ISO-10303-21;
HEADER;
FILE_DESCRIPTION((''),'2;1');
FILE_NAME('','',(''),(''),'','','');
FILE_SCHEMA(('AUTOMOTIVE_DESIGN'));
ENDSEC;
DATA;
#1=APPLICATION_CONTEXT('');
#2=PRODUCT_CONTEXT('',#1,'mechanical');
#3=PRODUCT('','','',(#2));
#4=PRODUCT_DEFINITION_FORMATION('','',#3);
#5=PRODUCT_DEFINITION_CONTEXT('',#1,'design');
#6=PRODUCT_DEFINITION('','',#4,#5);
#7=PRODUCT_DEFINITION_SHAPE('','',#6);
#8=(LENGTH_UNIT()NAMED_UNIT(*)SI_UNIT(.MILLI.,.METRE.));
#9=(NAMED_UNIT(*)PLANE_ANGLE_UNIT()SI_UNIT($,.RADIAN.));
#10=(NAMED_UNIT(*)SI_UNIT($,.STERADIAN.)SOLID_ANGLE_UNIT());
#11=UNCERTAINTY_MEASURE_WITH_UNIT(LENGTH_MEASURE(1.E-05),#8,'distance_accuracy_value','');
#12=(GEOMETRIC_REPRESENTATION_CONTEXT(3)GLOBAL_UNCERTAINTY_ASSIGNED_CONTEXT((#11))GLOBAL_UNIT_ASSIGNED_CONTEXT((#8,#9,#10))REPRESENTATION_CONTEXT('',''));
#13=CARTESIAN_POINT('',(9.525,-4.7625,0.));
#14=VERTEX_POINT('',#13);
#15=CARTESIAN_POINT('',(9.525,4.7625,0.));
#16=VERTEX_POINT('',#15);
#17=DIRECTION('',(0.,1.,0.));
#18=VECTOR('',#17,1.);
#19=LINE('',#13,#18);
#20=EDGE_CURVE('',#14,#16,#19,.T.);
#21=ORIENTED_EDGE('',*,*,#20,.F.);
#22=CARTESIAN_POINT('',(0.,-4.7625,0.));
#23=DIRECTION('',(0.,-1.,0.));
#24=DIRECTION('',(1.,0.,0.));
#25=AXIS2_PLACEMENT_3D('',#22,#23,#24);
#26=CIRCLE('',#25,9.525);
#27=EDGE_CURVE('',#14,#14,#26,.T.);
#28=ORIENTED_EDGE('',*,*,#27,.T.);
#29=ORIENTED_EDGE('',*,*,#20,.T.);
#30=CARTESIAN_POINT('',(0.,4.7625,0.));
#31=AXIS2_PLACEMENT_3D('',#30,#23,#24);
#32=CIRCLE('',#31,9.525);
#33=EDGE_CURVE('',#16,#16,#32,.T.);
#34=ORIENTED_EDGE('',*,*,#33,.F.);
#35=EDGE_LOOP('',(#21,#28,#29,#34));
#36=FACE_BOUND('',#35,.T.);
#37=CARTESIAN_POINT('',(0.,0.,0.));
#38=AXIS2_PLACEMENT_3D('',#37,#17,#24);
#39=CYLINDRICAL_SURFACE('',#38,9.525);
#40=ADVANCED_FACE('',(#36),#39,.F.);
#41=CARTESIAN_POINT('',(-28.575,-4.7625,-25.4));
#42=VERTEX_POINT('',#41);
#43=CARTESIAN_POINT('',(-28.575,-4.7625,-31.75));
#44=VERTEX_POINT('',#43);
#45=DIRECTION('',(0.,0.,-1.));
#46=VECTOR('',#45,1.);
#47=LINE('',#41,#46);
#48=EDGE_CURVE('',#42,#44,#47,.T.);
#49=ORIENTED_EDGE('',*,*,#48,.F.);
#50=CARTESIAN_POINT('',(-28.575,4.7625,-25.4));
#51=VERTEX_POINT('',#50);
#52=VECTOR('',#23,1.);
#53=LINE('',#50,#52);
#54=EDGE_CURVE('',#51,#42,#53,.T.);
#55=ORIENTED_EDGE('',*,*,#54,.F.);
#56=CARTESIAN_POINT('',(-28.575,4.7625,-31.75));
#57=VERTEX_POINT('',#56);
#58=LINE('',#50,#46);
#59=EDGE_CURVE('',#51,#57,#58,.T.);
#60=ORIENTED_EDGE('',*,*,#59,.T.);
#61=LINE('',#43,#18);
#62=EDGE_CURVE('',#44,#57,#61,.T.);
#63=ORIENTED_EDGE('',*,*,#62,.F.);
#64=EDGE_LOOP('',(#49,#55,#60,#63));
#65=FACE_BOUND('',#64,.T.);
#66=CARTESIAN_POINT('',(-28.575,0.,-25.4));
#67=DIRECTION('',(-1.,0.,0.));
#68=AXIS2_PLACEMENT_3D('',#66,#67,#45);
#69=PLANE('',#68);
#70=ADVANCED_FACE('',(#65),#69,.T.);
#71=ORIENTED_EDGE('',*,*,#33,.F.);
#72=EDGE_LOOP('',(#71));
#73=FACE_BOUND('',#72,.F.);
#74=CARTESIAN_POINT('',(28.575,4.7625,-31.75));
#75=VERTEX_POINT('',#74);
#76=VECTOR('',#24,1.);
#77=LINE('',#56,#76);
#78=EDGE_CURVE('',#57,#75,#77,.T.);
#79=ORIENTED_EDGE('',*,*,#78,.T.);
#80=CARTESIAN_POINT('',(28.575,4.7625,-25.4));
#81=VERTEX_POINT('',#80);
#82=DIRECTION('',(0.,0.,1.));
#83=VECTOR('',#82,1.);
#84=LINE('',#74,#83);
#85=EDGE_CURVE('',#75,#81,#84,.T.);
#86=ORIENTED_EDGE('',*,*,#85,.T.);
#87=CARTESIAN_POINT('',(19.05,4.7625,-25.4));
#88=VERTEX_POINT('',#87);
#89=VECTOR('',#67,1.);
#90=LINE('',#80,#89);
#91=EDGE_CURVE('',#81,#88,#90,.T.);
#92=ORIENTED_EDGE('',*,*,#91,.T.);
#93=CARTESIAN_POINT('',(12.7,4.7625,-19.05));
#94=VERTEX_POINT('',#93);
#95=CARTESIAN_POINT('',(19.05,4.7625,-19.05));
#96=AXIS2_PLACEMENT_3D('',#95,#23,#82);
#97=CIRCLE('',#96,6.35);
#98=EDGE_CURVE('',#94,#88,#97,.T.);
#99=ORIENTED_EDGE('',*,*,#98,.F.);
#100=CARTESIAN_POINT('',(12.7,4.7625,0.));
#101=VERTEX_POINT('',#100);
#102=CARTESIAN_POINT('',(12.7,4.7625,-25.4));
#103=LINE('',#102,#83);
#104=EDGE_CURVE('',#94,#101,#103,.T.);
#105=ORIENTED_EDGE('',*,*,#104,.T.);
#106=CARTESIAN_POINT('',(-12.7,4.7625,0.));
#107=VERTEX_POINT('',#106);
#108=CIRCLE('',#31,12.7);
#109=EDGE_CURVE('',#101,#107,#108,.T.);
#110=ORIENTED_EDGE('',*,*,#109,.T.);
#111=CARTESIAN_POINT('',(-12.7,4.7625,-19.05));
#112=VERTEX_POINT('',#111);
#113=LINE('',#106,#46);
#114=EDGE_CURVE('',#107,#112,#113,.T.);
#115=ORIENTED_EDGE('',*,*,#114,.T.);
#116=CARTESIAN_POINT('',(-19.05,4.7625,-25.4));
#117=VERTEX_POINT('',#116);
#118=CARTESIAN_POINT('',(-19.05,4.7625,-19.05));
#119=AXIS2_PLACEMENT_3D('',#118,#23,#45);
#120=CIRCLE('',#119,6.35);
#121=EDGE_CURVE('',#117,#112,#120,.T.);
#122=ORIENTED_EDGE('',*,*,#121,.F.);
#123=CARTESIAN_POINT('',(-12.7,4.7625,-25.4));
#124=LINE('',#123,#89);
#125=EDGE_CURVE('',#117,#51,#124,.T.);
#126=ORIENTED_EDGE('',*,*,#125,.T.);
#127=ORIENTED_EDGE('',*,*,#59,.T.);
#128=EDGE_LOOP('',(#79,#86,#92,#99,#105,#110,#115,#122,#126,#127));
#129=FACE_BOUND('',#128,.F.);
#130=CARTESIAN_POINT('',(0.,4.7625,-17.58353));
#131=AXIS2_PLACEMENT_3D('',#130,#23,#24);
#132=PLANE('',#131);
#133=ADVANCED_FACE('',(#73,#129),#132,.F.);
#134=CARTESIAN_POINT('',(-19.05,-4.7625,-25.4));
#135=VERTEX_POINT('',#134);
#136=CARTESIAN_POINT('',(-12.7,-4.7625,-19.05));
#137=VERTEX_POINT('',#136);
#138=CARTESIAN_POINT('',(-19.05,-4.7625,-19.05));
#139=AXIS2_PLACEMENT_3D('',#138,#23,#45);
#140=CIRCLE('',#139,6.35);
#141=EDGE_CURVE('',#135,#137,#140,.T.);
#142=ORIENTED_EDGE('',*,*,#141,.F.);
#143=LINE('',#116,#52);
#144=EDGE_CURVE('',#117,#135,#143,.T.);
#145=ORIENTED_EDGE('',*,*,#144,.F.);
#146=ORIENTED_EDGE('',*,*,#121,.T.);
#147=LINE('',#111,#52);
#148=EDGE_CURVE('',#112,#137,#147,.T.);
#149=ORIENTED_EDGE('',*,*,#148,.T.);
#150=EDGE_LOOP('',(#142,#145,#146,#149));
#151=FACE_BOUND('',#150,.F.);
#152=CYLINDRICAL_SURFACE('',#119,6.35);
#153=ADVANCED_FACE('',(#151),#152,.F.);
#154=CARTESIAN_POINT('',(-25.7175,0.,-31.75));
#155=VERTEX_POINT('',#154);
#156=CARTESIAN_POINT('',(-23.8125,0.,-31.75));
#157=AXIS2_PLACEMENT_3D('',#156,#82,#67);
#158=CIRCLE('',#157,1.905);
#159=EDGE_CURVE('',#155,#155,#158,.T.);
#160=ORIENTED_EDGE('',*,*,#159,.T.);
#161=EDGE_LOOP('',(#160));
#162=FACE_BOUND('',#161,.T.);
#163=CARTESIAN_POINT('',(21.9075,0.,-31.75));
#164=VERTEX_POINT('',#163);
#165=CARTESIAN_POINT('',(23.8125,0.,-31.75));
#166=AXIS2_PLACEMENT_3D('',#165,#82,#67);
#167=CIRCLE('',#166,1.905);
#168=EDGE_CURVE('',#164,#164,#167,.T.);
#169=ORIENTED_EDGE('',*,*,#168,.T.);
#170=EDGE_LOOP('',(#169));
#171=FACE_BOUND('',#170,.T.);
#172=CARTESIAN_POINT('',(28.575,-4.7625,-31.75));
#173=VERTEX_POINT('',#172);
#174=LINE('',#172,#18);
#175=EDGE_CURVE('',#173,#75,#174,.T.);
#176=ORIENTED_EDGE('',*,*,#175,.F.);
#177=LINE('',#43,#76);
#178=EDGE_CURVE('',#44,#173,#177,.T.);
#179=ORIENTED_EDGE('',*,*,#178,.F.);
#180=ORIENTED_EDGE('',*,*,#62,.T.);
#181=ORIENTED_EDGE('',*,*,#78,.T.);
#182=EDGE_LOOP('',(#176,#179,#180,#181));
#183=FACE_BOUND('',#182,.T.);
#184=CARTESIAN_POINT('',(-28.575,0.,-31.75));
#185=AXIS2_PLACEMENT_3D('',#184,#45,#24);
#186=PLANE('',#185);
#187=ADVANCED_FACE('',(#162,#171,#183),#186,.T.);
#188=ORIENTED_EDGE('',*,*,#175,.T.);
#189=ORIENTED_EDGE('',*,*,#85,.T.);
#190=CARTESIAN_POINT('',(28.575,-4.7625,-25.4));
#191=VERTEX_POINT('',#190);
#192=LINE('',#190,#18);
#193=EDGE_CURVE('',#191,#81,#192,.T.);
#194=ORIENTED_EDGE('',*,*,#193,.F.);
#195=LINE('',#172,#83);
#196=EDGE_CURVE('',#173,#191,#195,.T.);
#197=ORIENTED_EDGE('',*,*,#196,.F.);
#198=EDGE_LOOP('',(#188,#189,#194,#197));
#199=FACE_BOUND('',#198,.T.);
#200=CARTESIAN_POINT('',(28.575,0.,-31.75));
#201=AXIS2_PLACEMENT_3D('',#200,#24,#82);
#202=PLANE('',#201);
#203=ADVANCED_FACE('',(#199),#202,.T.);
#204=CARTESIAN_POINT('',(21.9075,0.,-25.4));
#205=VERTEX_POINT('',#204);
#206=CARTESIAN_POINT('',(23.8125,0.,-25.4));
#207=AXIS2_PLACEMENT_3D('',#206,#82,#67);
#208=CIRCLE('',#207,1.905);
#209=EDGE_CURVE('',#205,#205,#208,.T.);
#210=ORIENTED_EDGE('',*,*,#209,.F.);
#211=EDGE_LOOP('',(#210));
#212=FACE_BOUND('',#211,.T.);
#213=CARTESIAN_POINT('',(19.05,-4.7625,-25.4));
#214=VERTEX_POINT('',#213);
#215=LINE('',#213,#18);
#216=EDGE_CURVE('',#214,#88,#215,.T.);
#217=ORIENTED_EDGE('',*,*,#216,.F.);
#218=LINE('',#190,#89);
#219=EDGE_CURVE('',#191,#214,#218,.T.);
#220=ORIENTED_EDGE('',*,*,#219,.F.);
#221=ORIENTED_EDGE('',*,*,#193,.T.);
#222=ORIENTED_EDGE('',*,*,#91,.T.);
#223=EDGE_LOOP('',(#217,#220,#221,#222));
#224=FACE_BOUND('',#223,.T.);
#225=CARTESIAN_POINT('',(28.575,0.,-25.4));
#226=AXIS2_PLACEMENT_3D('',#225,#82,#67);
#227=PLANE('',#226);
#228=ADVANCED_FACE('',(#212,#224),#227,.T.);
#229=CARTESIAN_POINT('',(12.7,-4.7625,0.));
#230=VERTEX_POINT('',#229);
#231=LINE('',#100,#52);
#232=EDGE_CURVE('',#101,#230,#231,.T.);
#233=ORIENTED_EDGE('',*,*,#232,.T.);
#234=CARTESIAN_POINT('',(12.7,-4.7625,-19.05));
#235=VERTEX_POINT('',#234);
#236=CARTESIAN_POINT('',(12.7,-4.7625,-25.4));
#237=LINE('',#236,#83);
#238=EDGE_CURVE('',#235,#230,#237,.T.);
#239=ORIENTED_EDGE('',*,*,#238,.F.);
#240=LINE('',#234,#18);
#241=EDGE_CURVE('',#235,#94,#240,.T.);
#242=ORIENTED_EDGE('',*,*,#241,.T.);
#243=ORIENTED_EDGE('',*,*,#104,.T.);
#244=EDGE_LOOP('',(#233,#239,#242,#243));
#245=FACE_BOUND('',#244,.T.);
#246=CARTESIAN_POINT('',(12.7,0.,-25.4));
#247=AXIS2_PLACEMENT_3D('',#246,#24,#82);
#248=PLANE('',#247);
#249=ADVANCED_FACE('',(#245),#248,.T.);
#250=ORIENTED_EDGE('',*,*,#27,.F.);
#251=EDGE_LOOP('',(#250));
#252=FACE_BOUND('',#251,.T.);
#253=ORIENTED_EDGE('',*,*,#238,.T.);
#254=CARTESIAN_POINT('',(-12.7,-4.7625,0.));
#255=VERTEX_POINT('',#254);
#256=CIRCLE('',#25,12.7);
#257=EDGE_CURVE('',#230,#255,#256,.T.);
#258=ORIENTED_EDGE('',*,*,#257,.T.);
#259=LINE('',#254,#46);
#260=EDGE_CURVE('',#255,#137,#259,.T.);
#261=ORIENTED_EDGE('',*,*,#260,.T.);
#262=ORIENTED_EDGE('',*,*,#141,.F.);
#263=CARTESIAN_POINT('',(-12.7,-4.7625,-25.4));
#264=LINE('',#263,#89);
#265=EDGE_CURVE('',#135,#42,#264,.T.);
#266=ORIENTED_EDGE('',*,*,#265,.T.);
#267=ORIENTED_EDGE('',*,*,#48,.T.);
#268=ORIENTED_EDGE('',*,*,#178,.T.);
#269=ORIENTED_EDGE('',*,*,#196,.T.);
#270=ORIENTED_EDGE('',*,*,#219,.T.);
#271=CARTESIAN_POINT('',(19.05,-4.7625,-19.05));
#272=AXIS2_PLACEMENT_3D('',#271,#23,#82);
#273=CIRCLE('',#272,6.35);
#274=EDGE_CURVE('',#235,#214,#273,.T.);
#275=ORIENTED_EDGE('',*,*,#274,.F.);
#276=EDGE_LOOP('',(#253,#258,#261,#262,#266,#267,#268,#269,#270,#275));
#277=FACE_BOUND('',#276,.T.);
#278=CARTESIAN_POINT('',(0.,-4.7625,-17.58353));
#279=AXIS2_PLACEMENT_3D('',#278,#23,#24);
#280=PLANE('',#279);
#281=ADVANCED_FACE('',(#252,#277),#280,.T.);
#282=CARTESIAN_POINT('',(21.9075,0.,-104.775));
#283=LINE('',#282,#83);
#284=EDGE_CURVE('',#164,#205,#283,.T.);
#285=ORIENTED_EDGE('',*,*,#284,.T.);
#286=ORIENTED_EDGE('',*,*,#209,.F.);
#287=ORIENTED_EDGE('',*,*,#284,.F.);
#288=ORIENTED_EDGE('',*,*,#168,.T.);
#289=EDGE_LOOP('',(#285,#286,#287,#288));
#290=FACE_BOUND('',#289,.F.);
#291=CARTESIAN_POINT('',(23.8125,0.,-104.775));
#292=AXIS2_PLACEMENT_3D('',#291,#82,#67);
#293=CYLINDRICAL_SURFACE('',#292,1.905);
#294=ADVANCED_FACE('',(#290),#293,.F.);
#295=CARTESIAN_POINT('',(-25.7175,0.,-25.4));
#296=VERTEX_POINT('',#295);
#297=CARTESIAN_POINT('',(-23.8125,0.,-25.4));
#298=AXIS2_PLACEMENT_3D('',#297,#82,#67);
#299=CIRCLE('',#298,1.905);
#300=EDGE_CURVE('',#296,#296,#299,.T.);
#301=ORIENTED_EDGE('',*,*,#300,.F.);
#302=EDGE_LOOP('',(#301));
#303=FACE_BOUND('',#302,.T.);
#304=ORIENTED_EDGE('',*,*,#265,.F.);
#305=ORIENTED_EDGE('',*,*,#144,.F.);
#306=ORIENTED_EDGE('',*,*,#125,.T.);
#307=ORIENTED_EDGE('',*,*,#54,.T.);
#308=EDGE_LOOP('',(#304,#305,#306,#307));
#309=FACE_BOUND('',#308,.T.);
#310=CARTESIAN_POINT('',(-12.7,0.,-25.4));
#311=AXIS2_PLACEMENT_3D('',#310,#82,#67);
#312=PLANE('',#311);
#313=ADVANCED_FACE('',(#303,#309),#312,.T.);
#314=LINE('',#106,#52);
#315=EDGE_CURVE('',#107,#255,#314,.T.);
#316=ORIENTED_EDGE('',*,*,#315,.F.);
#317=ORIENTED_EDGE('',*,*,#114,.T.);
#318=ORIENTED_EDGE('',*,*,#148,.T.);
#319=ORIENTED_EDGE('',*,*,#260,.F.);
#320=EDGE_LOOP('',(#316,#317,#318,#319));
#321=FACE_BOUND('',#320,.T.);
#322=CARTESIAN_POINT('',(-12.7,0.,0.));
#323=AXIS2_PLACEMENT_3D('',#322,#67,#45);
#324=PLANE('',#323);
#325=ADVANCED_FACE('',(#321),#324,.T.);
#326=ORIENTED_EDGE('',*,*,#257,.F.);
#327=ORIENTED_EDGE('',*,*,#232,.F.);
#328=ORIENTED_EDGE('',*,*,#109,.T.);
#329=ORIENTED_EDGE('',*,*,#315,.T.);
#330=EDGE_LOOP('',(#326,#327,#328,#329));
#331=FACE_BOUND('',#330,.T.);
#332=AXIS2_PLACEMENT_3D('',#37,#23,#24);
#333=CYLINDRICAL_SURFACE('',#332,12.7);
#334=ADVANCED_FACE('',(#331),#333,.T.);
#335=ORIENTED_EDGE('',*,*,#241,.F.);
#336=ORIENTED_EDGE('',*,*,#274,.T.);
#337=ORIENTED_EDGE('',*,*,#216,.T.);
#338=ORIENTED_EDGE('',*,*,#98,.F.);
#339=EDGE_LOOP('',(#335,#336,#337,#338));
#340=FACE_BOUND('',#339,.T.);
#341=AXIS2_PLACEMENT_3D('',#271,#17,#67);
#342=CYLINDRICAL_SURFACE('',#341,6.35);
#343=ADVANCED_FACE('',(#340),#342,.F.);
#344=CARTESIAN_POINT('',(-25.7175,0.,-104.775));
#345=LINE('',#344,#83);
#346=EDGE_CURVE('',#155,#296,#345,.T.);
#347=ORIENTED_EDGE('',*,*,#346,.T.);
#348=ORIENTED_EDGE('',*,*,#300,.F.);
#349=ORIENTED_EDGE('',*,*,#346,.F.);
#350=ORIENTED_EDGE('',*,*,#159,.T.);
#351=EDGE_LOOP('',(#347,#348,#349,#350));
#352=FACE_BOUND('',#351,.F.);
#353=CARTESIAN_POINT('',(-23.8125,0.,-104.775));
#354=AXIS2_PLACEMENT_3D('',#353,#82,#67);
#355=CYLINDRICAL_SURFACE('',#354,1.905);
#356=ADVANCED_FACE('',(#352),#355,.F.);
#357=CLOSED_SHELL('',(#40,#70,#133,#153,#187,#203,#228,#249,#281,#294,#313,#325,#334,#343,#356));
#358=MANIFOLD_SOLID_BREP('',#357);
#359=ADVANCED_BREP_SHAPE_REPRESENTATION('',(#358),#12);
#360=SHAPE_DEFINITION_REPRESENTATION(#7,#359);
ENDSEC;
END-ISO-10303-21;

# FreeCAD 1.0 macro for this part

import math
import FreeCAD as App
import Part
import Sketcher

V = App.Vector
Q = App.Units.Quantity


def edges_at(feature, points):
    """Names of the edges that pass closest to the given points."""
    edges = feature.Shape.Edges
    near = lambda p: min(range(len(edges)), key=lambda i: edges[i].distToShape(Part.Vertex(*p))[0])
    return sorted({f"Edge{near(p) + 1}" for p in points})

doc = App.newDocument("Part")
body = doc.addObject("PartDesign::Body", "Body")

sketch1 = body.newObject("Sketcher::SketchObject", "Sketch")
sketch1.AttachmentSupport = (doc.getObject("XZ_Plane"), [""])
sketch1.MapMode = "FlatFace"
sketch1.addGeometry([
    Part.LineSegment(V(12.7, -25.4, 0), V(12.7, 0, 0)),
    Part.ArcOfCircle(Part.Circle(V(0, 0, 0), V(0, 0, 1), 12.7), math.radians(0), math.radians(180)),
    Part.LineSegment(V(-12.7, 0, 0), V(-12.7, -25.4, 0)),
    Part.LineSegment(V(-12.7, -25.4, 0), V(-28.575, -25.4, 0)),
    Part.LineSegment(V(-28.575, -25.4, 0), V(-28.575, -31.75, 0)),
    Part.LineSegment(V(-28.575, -31.75, 0), V(28.575, -31.75, 0)),
    Part.LineSegment(V(28.575, -31.75, 0), V(28.575, -25.4, 0)),
    Part.LineSegment(V(28.575, -25.4, 0), V(12.7, -25.4, 0)),
    Part.Circle(V(0, 0, 0), V(0, 0, 1), 9.525),
], False)
sketch1.addConstraint([
    Sketcher.Constraint("Tangent", 0, 2, 1, 1),
    Sketcher.Constraint("Tangent", 1, 2, 2, 1),
    Sketcher.Constraint("Coincident", 2, 2, 3, 1),
    Sketcher.Constraint("Coincident", 3, 2, 4, 1),
    Sketcher.Constraint("Coincident", 4, 2, 5, 1),
    Sketcher.Constraint("Coincident", 5, 2, 6, 1),
    Sketcher.Constraint("Coincident", 6, 2, 7, 1),
    Sketcher.Constraint("Coincident", 7, 2, 0, 1),
    Sketcher.Constraint("Vertical", 0),
    Sketcher.Constraint("Vertical", 2),
    Sketcher.Constraint("Horizontal", 3),
    Sketcher.Constraint("Vertical", 4),
    Sketcher.Constraint("Horizontal", 5),
    Sketcher.Constraint("Vertical", 6),
    Sketcher.Constraint("Horizontal", 7),
    Sketcher.Constraint("Coincident", 1, 3, -1, 1),
    Sketcher.Constraint("Coincident", 8, 3, -1, 1),
    Sketcher.Constraint("Symmetric", 3, 2, 6, 2, -2),
    Sketcher.Constraint("Radius", 1, Q("0.5 in")),
    Sketcher.Constraint("Diameter", 8, Q("0.75 in")),
    Sketcher.Constraint("DistanceY", 0, 1, 0, 2, Q("1 in")),
    Sketcher.Constraint("DistanceX", 5, 1, 5, 2, Q("2.25 in")),
    Sketcher.Constraint("DistanceY", 4, 2, 4, 1, Q("0.25 in")),
])
pad1 = body.newObject("PartDesign::Pad", "Pad")
pad1.Profile = sketch1
pad1.Length = Q("0.375 in")
pad1.Midplane = True
doc.recompute()

fillet = body.newObject("PartDesign::Fillet", "Fillet")
fillet.Base = (pad1, edges_at(pad1, [(-12.7, 0, -25.4), (12.7, 0, -25.4)]))
fillet.Radius = Q("0.25 in")

sketch2 = body.newObject("Sketcher::SketchObject", "Sketch001")
sketch2.AttachmentSupport = (doc.getObject("XY_Plane"), [""])
sketch2.MapMode = "FlatFace"
sketch2.AttachmentOffset = App.Placement(V(0, 0, -1.25 * 25.4), App.Rotation())
sketch2.addGeometry([
    Part.Circle(V(-23.8125, 0, 0), V(0, 0, 1), 1.905),
    Part.Circle(V(23.8125, 0, 0), V(0, 0, 1), 1.905),
], False)
sketch2.addConstraint([
    Sketcher.Constraint("Equal", 0, 1),
    Sketcher.Constraint("Symmetric", 0, 3, 1, 3, -1, 1),
    Sketcher.Constraint("PointOnObject", 0, 3, -1),
    Sketcher.Constraint("Diameter", 0, Q("0.15 in")),
    Sketcher.Constraint("DistanceX", 0, 3, -1, 1, Q("0.9375 in")),
])
doc.recompute()
hole = body.newObject("PartDesign::Hole", "Hole")
hole.Profile = sketch2
hole.ThreadType = "None"
hole.Diameter = Q("0.15 in")
hole.DepthType = "ThroughAll"
hole.Reversed = True

doc.recompute()
